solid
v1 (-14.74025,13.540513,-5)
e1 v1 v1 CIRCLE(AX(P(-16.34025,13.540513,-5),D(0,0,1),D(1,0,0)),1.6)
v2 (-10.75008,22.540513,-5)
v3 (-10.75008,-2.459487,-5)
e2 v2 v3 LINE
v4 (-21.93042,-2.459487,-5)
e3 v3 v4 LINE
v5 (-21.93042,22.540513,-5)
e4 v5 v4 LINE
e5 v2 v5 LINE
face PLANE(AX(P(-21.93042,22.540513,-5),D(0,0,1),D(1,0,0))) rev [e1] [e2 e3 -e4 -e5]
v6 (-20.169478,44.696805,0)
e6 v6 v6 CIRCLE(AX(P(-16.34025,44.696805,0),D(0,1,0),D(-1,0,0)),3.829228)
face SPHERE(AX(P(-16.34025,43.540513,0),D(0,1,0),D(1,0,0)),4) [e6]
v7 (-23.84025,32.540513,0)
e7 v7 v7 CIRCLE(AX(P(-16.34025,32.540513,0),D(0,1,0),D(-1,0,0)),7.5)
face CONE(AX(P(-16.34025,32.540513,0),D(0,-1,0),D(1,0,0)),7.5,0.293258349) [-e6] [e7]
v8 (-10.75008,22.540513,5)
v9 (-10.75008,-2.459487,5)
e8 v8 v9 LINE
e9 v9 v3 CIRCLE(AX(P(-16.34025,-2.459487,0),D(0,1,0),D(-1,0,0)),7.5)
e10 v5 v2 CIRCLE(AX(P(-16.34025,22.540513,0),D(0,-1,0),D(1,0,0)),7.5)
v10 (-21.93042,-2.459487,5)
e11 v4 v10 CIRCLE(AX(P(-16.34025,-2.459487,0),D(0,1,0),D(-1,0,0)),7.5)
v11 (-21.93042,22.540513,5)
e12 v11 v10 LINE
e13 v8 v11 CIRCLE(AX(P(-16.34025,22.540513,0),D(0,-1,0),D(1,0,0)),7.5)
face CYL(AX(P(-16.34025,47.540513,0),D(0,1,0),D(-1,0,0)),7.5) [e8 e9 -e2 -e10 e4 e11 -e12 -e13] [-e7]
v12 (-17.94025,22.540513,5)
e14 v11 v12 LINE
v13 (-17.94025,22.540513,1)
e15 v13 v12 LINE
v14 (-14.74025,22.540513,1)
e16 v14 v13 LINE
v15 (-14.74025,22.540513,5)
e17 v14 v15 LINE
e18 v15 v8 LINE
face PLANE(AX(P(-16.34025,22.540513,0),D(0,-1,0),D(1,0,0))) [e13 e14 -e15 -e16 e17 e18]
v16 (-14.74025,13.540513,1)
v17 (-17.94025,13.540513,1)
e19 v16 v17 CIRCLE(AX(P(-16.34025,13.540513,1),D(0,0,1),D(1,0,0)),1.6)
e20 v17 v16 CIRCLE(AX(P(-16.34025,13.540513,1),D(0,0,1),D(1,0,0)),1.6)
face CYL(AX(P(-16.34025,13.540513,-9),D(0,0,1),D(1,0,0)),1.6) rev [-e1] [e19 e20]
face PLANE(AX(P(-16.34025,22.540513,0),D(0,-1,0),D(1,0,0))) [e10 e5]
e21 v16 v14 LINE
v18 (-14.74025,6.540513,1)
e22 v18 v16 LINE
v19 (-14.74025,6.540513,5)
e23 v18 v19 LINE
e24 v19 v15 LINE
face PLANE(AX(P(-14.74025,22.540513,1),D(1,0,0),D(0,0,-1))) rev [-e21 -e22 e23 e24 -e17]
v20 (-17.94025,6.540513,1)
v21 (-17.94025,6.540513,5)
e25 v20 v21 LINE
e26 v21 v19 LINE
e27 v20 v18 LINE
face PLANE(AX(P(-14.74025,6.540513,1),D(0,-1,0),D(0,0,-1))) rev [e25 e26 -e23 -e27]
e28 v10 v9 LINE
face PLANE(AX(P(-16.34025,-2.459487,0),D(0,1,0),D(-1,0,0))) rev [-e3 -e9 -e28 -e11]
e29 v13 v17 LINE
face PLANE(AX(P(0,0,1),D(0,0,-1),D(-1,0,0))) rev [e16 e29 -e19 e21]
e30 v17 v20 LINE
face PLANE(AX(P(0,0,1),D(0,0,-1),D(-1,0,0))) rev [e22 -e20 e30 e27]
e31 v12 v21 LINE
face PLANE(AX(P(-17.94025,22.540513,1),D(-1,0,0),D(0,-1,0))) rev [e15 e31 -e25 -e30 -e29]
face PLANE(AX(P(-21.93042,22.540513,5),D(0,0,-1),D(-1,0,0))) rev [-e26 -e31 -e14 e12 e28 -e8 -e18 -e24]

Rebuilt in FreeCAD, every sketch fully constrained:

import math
import FreeCAD as App
import Part
import Sketcher

V = App.Vector
Q = App.Units.Quantity

doc = App.newDocument("Part")
body = doc.addObject("PartDesign::Body", "Body")

# Sketch on XY plane
sketch1 = body.newObject("Sketcher::SketchObject", "Sketch")
sketch1.AttachmentSupport = (doc.getObject("XY_Plane"), [""])
sketch1.MapMode = "FlatFace"
sketch1.addGeometry([
    Part.LineSegment(V(-16.3, 47.5, 0), V(-16.3, -2.5, 0)),  # 0
    Part.LineSegment(V(-16.3, -2.5, 0), V(-8.8, -2.5, 0)),  # 1
    Part.LineSegment(V(-8.8, -2.5, 0), V(-8.8, 32.5, 0)),  # 2
    Part.LineSegment(V(-8.8, 32.5, 0), V(-12.5, 44.7, 0)),  # 3
    Part.ArcOfCircle(Part.Circle(V(-16.3, 43.5, 0), V(0, 0, 1), 4), math.radians(17), math.radians(90)),  # 4
], False)
sketch1.addGeometry(Part.LineSegment(V(-16.3, 47.5, 0), V(-16.3, -2.5, 0)), True)  # axis
sketch1.addConstraint([
    Sketcher.Constraint("Coincident", 0, 2, 1, 1),
    Sketcher.Constraint("Coincident", 1, 2, 2, 1),
    Sketcher.Constraint("Coincident", 2, 2, 3, 1),
    Sketcher.Constraint("Tangent", 3, 2, 4, 1),
    Sketcher.Constraint("Coincident", 4, 2, 0, 1),
    Sketcher.Constraint("Vertical", 0),
    Sketcher.Constraint("Horizontal", 1),
    Sketcher.Constraint("Vertical", 2),
    Sketcher.Constraint("Vertical", 5),
    Sketcher.Constraint("Coincident", 5, 1, 4, 2),
    Sketcher.Constraint("Horizontal", 1, 2, 5, 2),
    Sketcher.Constraint("Vertical", 4, 3, 0, 2),
    Sketcher.Constraint("Radius", 4, Q("4 mm")),
    Sketcher.Constraint("DistanceY", 0, 2, 0, 1, Q("50 mm")),
    Sketcher.Constraint("DistanceY", 2, 1, 2, 2, Q("35 mm")),
    Sketcher.Constraint("DistanceX", 1, 1, 1, 2, Q("7.5 mm")),
    Sketcher.Constraint("DistanceX", 4, 3, -1, 1, Q("16.34025 mm")),
    Sketcher.Constraint("DistanceY", -1, 1, 4, 3, Q("43.540513 mm")),
])
revolution = body.newObject("PartDesign::Revolution", "Revolution")
revolution.Profile = sketch1
revolution.ReferenceAxis = (sketch1, ["Axis0"])
revolution.Angle = 360

# Sketch on XZ plane
sketch2 = body.newObject("Sketcher::SketchObject", "Sketch001")
sketch2.AttachmentSupport = (doc.getObject("XZ_Plane"), [""])
sketch2.MapMode = "FlatFace"
sketch2.AttachmentOffset = App.Placement(V(0, 0, -22.540513), App.Rotation())
sketch2.addGeometry([
    Part.LineSegment(V(-22, 5, 0), V(-11, 5, 0)),
    Part.ArcOfCircle(Part.Circle(V(-16, 0, 0), V(0, 0, 1), 8), math.radians(42), math.radians(138)),
    Part.LineSegment(V(-11, -5, 0), V(-22, -5, 0)),
    Part.ArcOfCircle(Part.Circle(V(-16, 0, 0), V(0, 0, 1), 8), math.radians(-138), math.radians(-42)),
], False)
sketch2.addConstraint([
    Sketcher.Constraint("Coincident", 0, 1, 1, 2),
    Sketcher.Constraint("Coincident", 1, 1, 0, 2),
    Sketcher.Constraint("Coincident", 2, 1, 3, 2),
    Sketcher.Constraint("Coincident", 3, 1, 2, 2),
    Sketcher.Constraint("Horizontal", 0),
    Sketcher.Constraint("Horizontal", 2),
    Sketcher.Constraint("Coincident", 3, 3, 1, 3),
    Sketcher.Constraint("Equal", 1, 3),
    Sketcher.Constraint("Symmetric", 1, 1, 2, 1, -1),
    Sketcher.Constraint("Radius", 1, Q("7.5 mm")),
    Sketcher.Constraint("DistanceY", -1, 1, 0, 1, Q("5 mm")),
    Sketcher.Constraint("DistanceX", 1, 3, -1, 1, Q("16.34025 mm")),
])
pocket1 = body.newObject("PartDesign::Pocket", "Pocket")
pocket1.Profile = sketch2
pocket1.Length = 25
pocket1.Reversed = True

# Sketch on XY plane
sketch3 = body.newObject("Sketcher::SketchObject", "Sketch002")
sketch3.AttachmentSupport = (doc.getObject("XY_Plane"), [""])
sketch3.MapMode = "FlatFace"
sketch3.AttachmentOffset = App.Placement(V(0, 0, 5), App.Rotation())
sketch3.addGeometry([
    Part.LineSegment(V(-17.9, 22.5, 0), V(-17.9, 6.5, 0)),
    Part.LineSegment(V(-17.9, 6.5, 0), V(-14.7, 6.5, 0)),
    Part.LineSegment(V(-14.7, 6.5, 0), V(-14.7, 22.5, 0)),
    Part.LineSegment(V(-14.7, 22.5, 0), V(-17.9, 22.5, 0)),
], False)
sketch3.addConstraint([
    Sketcher.Constraint("Coincident", 0, 2, 1, 1),
    Sketcher.Constraint("Coincident", 1, 2, 2, 1),
    Sketcher.Constraint("Coincident", 2, 2, 3, 1),
    Sketcher.Constraint("Coincident", 3, 2, 0, 1),
    Sketcher.Constraint("Vertical", 0),
    Sketcher.Constraint("Horizontal", 1),
    Sketcher.Constraint("Vertical", 2),
    Sketcher.Constraint("Horizontal", 3),
    Sketcher.Constraint("DistanceY", 0, 2, 0, 1, Q("16 mm")),
    Sketcher.Constraint("DistanceX", 1, 1, 1, 2, Q("3.2 mm")),
    Sketcher.Constraint("DistanceX", 0, 2, -1, 1, Q("17.94025 mm")),
    Sketcher.Constraint("DistanceY", -1, 1, 0, 2, Q("6.540513 mm")),
])
pocket2 = body.newObject("PartDesign::Pocket", "Pocket001")
pocket2.Profile = sketch3
pocket2.Length = 4

# Sketch on XY plane
sketch4 = body.newObject("Sketcher::SketchObject", "Sketch003")
sketch4.AttachmentSupport = (doc.getObject("XY_Plane"), [""])
sketch4.MapMode = "FlatFace"
sketch4.AttachmentOffset = App.Placement(V(0, 0, 1), App.Rotation())
sketch4.addGeometry(Part.Circle(V(-16.3, 13.5, 0), V(0, 0, 1), 1.6), False)
sketch4.addConstraint([
    Sketcher.Constraint("Diameter", 0, Q("3.2 mm")),
    Sketcher.Constraint("DistanceX", 0, 3, -1, 1, Q("16.34025 mm")),
    Sketcher.Constraint("DistanceY", -1, 1, 0, 3, Q("13.540513 mm")),
])
pocket3 = body.newObject("PartDesign::Pocket", "Pocket002")
pocket3.Profile = sketch4
pocket3.Length = 10

doc.recompute()
